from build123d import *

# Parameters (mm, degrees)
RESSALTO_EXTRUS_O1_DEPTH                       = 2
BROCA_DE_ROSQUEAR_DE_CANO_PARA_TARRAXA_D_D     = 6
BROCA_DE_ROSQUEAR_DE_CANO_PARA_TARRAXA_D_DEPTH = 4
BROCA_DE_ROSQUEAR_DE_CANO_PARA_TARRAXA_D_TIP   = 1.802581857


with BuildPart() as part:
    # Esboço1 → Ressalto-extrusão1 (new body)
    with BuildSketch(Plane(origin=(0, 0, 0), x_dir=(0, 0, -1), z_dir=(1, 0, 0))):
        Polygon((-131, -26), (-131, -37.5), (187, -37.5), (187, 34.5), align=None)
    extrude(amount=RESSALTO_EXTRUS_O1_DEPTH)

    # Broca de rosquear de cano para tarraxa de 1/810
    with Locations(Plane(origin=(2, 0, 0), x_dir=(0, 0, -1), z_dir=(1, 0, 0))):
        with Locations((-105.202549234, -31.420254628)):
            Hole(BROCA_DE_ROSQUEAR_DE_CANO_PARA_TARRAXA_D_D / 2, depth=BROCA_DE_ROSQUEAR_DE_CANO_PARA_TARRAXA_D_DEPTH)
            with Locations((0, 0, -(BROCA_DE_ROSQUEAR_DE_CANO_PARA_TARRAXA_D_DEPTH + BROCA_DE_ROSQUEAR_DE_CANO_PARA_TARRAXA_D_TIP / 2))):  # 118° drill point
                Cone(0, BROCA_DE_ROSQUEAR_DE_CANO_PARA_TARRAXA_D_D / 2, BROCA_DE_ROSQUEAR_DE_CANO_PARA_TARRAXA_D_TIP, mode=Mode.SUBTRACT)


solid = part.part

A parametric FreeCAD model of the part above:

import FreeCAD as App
import Part
import Sketcher
from FreeCAD import Vector


def add_polygon(sketch, points):
    """Adds a closed chain of lines whose ends are joined by coincident constraints."""
    first, n = sketch.GeometryCount, len(points)
    for a, b in zip(points, points[1:] + points[:1]):
        sketch.addGeometry(Part.LineSegment(App.Vector(*a, 0), App.Vector(*b, 0)), False)
    for i in range(n):
        sketch.addConstraint(Sketcher.Constraint("Coincident", first + i, 2, first + (i + 1) % n, 1))

doc = App.newDocument("Part")
body = doc.addObject("PartDesign::Body", "Body")

sketch1 = body.newObject("Sketcher::SketchObject", "Sketch")
sketch1.AttachmentSupport = (doc.getObject("YZ_Plane"), [""])
sketch1.MapMode = "FlatFace"
add_polygon(sketch1, [(-26, 131), (-38, 131), (-38, -187), (34, -187)])
sketch1.addConstraint([
    Sketcher.Constraint("Horizontal", 0),
    Sketcher.Constraint("Vertical", 1),
    Sketcher.Constraint("Horizontal", 2),
    Sketcher.Constraint("DistanceX", 2, 1, 2, 2, 72.0),
    Sketcher.Constraint("DistanceY", 1, 2, 1, 1, 318.0),
    Sketcher.Constraint("DistanceX", 0, 2, 0, 1, 11.5),
    Sketcher.Constraint("DistanceY", -1, 1, 0, 2, 131.0),
    Sketcher.Constraint("DistanceX", 3, 2, -1, 1, 26.0),
])
pad1 = body.newObject("PartDesign::Pad", "Pad")
pad1.Profile = sketch1
pad1.Length = 2

sketch2 = body.newObject("Sketcher::SketchObject", "Sketch001")
sketch2.AttachmentSupport = (doc.getObject("YZ_Plane"), [""])
sketch2.MapMode = "FlatFace"
sketch2.AttachmentOffset = App.Placement(Vector(0, 0, 2), App.Rotation())
sketch2.addGeometry(Part.Circle(Vector(-31.4, 105.2, 0), Vector(0, 0, 1), 3), False)
sketch2.addConstraint([
    Sketcher.Constraint("Diameter", 0, 6.0),
    Sketcher.Constraint("DistanceY", -1, 1, 0, 3, 105.202549),
    Sketcher.Constraint("DistanceX", 0, 3, -1, 1, 31.420255),
])
doc.recompute()
hole = body.newObject("PartDesign::Hole", "Hole")
hole.Profile = sketch2
hole.ThreadType = "None"
hole.Diameter = 6
hole.DepthType = "Dimension"
hole.Depth = 4
hole.DrillPoint = "Angled"
hole.DrillPointAngle = 118

doc.recompute()
